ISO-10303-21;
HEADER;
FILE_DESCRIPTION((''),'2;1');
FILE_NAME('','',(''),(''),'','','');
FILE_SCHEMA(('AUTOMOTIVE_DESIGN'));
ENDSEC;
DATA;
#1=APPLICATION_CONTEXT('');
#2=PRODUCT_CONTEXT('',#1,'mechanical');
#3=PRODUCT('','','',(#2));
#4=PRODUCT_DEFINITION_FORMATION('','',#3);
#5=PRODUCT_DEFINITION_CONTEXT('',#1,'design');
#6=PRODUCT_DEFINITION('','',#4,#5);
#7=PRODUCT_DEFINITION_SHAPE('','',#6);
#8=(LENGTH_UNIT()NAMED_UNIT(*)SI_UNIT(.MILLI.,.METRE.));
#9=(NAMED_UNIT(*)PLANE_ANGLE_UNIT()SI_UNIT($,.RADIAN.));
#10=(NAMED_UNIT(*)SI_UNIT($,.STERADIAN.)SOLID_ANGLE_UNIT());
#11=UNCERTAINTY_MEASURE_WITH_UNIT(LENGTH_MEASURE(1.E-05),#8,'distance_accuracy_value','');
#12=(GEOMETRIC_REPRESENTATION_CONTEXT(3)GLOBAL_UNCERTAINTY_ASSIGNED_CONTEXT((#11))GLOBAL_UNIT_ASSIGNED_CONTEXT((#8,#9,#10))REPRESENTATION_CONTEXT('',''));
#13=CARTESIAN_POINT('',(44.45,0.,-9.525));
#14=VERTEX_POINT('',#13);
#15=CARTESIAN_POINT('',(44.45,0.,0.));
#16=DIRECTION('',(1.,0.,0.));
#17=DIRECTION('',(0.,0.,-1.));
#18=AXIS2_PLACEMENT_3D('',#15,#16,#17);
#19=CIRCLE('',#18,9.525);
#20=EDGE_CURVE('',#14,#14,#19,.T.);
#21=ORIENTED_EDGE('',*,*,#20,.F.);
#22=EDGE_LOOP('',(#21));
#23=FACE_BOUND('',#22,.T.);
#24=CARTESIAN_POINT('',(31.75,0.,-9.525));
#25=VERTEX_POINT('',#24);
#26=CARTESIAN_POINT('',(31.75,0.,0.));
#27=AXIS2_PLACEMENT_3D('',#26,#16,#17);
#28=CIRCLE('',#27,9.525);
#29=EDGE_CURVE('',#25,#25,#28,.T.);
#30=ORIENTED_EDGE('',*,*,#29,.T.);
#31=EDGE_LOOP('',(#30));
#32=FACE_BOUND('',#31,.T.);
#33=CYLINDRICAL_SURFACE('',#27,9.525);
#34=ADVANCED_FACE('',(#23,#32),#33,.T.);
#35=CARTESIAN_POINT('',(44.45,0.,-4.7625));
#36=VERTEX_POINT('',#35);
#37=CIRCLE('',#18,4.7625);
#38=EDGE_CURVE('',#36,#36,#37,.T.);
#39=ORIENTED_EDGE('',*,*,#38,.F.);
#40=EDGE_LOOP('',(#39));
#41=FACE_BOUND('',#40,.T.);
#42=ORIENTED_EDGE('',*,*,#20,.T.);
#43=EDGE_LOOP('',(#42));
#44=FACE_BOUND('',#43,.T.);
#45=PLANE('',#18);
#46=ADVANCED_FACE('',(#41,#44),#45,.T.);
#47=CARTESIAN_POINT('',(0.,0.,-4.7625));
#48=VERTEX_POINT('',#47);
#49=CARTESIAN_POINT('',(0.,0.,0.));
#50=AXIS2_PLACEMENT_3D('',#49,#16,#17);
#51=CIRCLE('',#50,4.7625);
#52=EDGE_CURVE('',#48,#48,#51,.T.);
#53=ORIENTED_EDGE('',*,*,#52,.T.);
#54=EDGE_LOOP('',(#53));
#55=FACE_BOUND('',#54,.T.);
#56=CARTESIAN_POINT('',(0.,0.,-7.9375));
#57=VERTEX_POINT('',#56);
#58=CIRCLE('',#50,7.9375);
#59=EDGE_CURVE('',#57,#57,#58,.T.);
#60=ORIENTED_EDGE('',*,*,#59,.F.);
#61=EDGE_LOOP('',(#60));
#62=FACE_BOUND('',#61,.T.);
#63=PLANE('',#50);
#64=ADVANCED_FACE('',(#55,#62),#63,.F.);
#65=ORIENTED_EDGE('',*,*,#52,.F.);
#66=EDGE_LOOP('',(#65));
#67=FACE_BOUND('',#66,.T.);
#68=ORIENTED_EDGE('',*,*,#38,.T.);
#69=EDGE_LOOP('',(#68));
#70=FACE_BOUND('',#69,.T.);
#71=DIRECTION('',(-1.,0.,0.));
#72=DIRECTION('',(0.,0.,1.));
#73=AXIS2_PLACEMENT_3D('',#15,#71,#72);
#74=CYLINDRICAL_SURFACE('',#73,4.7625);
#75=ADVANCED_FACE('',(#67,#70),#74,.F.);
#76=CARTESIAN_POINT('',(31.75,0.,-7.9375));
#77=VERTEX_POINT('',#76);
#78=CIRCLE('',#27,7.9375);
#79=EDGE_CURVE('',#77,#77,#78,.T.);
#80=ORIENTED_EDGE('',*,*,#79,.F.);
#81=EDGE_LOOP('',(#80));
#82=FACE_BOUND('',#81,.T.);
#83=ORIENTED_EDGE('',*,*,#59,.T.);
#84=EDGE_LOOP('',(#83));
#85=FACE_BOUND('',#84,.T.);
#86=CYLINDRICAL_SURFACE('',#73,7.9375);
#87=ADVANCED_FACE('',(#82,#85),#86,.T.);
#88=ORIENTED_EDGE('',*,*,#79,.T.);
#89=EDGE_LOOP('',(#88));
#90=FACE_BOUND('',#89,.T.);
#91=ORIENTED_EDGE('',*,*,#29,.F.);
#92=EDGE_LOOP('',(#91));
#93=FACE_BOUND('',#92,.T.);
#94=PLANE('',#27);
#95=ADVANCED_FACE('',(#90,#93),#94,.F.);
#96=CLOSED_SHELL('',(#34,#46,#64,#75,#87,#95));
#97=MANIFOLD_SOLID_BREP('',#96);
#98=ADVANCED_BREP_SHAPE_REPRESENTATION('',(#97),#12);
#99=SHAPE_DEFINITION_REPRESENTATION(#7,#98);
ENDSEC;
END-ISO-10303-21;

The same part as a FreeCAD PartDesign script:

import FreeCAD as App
import Part
import Sketcher
Q = App.Units.Quantity

doc = App.newDocument("Part")
body = doc.addObject("PartDesign::Body", "Body")

sketch1 = body.newObject("Sketcher::SketchObject", "Sketch")
sketch1.AttachmentSupport = (doc.getObject("YZ_Plane"), [""])
sketch1.MapMode = "FlatFace"
sketch1.addGeometry([
    Part.Circle(App.Vector(0, 0, 0), App.Vector(0, 0, 1), 7.9),
    Part.Circle(App.Vector(0, 0, 0), App.Vector(0, 0, 1), 4.8),
], False)
sketch1.addConstraint([
    Sketcher.Constraint("Coincident", 0, 3, -1, 1),
    Sketcher.Constraint("Coincident", 1, 3, -1, 1),
    Sketcher.Constraint("Diameter", 0, Q("0.625 in")),
    Sketcher.Constraint("Diameter", 1, Q("0.375 in")),
])
pad1 = body.newObject("PartDesign::Pad", "Pad")
pad1.Profile = sketch1
pad1.Length = Q("1.75 in")

sketch2 = body.newObject("Sketcher::SketchObject", "Sketch001")
sketch2.AttachmentSupport = (doc.getObject("YZ_Plane"), [""])
sketch2.MapMode = "FlatFace"
sketch2.AttachmentOffset = App.Placement(App.Vector(0, 0, 1.25 * 25.4), App.Rotation())
sketch2.addGeometry([
    Part.Circle(App.Vector(0, 0, 0), App.Vector(0, 0, 1), 10),
    Part.Circle(App.Vector(0, 0, 0), App.Vector(0, 0, 1), 8),
], False)
sketch2.addConstraint([
    Sketcher.Constraint("Coincident", 0, 3, -1, 1),
    Sketcher.Constraint("Coincident", 1, 3, -1, 1),
    Sketcher.Constraint("Diameter", 0, Q("0.75 in")),
    Sketcher.Constraint("Diameter", 1, Q("0.625 in")),
])
pad2 = body.newObject("PartDesign::Pad", "Pad001")
pad2.Profile = sketch2
pad2.Length = Q("0.5 in")

doc.recompute()
